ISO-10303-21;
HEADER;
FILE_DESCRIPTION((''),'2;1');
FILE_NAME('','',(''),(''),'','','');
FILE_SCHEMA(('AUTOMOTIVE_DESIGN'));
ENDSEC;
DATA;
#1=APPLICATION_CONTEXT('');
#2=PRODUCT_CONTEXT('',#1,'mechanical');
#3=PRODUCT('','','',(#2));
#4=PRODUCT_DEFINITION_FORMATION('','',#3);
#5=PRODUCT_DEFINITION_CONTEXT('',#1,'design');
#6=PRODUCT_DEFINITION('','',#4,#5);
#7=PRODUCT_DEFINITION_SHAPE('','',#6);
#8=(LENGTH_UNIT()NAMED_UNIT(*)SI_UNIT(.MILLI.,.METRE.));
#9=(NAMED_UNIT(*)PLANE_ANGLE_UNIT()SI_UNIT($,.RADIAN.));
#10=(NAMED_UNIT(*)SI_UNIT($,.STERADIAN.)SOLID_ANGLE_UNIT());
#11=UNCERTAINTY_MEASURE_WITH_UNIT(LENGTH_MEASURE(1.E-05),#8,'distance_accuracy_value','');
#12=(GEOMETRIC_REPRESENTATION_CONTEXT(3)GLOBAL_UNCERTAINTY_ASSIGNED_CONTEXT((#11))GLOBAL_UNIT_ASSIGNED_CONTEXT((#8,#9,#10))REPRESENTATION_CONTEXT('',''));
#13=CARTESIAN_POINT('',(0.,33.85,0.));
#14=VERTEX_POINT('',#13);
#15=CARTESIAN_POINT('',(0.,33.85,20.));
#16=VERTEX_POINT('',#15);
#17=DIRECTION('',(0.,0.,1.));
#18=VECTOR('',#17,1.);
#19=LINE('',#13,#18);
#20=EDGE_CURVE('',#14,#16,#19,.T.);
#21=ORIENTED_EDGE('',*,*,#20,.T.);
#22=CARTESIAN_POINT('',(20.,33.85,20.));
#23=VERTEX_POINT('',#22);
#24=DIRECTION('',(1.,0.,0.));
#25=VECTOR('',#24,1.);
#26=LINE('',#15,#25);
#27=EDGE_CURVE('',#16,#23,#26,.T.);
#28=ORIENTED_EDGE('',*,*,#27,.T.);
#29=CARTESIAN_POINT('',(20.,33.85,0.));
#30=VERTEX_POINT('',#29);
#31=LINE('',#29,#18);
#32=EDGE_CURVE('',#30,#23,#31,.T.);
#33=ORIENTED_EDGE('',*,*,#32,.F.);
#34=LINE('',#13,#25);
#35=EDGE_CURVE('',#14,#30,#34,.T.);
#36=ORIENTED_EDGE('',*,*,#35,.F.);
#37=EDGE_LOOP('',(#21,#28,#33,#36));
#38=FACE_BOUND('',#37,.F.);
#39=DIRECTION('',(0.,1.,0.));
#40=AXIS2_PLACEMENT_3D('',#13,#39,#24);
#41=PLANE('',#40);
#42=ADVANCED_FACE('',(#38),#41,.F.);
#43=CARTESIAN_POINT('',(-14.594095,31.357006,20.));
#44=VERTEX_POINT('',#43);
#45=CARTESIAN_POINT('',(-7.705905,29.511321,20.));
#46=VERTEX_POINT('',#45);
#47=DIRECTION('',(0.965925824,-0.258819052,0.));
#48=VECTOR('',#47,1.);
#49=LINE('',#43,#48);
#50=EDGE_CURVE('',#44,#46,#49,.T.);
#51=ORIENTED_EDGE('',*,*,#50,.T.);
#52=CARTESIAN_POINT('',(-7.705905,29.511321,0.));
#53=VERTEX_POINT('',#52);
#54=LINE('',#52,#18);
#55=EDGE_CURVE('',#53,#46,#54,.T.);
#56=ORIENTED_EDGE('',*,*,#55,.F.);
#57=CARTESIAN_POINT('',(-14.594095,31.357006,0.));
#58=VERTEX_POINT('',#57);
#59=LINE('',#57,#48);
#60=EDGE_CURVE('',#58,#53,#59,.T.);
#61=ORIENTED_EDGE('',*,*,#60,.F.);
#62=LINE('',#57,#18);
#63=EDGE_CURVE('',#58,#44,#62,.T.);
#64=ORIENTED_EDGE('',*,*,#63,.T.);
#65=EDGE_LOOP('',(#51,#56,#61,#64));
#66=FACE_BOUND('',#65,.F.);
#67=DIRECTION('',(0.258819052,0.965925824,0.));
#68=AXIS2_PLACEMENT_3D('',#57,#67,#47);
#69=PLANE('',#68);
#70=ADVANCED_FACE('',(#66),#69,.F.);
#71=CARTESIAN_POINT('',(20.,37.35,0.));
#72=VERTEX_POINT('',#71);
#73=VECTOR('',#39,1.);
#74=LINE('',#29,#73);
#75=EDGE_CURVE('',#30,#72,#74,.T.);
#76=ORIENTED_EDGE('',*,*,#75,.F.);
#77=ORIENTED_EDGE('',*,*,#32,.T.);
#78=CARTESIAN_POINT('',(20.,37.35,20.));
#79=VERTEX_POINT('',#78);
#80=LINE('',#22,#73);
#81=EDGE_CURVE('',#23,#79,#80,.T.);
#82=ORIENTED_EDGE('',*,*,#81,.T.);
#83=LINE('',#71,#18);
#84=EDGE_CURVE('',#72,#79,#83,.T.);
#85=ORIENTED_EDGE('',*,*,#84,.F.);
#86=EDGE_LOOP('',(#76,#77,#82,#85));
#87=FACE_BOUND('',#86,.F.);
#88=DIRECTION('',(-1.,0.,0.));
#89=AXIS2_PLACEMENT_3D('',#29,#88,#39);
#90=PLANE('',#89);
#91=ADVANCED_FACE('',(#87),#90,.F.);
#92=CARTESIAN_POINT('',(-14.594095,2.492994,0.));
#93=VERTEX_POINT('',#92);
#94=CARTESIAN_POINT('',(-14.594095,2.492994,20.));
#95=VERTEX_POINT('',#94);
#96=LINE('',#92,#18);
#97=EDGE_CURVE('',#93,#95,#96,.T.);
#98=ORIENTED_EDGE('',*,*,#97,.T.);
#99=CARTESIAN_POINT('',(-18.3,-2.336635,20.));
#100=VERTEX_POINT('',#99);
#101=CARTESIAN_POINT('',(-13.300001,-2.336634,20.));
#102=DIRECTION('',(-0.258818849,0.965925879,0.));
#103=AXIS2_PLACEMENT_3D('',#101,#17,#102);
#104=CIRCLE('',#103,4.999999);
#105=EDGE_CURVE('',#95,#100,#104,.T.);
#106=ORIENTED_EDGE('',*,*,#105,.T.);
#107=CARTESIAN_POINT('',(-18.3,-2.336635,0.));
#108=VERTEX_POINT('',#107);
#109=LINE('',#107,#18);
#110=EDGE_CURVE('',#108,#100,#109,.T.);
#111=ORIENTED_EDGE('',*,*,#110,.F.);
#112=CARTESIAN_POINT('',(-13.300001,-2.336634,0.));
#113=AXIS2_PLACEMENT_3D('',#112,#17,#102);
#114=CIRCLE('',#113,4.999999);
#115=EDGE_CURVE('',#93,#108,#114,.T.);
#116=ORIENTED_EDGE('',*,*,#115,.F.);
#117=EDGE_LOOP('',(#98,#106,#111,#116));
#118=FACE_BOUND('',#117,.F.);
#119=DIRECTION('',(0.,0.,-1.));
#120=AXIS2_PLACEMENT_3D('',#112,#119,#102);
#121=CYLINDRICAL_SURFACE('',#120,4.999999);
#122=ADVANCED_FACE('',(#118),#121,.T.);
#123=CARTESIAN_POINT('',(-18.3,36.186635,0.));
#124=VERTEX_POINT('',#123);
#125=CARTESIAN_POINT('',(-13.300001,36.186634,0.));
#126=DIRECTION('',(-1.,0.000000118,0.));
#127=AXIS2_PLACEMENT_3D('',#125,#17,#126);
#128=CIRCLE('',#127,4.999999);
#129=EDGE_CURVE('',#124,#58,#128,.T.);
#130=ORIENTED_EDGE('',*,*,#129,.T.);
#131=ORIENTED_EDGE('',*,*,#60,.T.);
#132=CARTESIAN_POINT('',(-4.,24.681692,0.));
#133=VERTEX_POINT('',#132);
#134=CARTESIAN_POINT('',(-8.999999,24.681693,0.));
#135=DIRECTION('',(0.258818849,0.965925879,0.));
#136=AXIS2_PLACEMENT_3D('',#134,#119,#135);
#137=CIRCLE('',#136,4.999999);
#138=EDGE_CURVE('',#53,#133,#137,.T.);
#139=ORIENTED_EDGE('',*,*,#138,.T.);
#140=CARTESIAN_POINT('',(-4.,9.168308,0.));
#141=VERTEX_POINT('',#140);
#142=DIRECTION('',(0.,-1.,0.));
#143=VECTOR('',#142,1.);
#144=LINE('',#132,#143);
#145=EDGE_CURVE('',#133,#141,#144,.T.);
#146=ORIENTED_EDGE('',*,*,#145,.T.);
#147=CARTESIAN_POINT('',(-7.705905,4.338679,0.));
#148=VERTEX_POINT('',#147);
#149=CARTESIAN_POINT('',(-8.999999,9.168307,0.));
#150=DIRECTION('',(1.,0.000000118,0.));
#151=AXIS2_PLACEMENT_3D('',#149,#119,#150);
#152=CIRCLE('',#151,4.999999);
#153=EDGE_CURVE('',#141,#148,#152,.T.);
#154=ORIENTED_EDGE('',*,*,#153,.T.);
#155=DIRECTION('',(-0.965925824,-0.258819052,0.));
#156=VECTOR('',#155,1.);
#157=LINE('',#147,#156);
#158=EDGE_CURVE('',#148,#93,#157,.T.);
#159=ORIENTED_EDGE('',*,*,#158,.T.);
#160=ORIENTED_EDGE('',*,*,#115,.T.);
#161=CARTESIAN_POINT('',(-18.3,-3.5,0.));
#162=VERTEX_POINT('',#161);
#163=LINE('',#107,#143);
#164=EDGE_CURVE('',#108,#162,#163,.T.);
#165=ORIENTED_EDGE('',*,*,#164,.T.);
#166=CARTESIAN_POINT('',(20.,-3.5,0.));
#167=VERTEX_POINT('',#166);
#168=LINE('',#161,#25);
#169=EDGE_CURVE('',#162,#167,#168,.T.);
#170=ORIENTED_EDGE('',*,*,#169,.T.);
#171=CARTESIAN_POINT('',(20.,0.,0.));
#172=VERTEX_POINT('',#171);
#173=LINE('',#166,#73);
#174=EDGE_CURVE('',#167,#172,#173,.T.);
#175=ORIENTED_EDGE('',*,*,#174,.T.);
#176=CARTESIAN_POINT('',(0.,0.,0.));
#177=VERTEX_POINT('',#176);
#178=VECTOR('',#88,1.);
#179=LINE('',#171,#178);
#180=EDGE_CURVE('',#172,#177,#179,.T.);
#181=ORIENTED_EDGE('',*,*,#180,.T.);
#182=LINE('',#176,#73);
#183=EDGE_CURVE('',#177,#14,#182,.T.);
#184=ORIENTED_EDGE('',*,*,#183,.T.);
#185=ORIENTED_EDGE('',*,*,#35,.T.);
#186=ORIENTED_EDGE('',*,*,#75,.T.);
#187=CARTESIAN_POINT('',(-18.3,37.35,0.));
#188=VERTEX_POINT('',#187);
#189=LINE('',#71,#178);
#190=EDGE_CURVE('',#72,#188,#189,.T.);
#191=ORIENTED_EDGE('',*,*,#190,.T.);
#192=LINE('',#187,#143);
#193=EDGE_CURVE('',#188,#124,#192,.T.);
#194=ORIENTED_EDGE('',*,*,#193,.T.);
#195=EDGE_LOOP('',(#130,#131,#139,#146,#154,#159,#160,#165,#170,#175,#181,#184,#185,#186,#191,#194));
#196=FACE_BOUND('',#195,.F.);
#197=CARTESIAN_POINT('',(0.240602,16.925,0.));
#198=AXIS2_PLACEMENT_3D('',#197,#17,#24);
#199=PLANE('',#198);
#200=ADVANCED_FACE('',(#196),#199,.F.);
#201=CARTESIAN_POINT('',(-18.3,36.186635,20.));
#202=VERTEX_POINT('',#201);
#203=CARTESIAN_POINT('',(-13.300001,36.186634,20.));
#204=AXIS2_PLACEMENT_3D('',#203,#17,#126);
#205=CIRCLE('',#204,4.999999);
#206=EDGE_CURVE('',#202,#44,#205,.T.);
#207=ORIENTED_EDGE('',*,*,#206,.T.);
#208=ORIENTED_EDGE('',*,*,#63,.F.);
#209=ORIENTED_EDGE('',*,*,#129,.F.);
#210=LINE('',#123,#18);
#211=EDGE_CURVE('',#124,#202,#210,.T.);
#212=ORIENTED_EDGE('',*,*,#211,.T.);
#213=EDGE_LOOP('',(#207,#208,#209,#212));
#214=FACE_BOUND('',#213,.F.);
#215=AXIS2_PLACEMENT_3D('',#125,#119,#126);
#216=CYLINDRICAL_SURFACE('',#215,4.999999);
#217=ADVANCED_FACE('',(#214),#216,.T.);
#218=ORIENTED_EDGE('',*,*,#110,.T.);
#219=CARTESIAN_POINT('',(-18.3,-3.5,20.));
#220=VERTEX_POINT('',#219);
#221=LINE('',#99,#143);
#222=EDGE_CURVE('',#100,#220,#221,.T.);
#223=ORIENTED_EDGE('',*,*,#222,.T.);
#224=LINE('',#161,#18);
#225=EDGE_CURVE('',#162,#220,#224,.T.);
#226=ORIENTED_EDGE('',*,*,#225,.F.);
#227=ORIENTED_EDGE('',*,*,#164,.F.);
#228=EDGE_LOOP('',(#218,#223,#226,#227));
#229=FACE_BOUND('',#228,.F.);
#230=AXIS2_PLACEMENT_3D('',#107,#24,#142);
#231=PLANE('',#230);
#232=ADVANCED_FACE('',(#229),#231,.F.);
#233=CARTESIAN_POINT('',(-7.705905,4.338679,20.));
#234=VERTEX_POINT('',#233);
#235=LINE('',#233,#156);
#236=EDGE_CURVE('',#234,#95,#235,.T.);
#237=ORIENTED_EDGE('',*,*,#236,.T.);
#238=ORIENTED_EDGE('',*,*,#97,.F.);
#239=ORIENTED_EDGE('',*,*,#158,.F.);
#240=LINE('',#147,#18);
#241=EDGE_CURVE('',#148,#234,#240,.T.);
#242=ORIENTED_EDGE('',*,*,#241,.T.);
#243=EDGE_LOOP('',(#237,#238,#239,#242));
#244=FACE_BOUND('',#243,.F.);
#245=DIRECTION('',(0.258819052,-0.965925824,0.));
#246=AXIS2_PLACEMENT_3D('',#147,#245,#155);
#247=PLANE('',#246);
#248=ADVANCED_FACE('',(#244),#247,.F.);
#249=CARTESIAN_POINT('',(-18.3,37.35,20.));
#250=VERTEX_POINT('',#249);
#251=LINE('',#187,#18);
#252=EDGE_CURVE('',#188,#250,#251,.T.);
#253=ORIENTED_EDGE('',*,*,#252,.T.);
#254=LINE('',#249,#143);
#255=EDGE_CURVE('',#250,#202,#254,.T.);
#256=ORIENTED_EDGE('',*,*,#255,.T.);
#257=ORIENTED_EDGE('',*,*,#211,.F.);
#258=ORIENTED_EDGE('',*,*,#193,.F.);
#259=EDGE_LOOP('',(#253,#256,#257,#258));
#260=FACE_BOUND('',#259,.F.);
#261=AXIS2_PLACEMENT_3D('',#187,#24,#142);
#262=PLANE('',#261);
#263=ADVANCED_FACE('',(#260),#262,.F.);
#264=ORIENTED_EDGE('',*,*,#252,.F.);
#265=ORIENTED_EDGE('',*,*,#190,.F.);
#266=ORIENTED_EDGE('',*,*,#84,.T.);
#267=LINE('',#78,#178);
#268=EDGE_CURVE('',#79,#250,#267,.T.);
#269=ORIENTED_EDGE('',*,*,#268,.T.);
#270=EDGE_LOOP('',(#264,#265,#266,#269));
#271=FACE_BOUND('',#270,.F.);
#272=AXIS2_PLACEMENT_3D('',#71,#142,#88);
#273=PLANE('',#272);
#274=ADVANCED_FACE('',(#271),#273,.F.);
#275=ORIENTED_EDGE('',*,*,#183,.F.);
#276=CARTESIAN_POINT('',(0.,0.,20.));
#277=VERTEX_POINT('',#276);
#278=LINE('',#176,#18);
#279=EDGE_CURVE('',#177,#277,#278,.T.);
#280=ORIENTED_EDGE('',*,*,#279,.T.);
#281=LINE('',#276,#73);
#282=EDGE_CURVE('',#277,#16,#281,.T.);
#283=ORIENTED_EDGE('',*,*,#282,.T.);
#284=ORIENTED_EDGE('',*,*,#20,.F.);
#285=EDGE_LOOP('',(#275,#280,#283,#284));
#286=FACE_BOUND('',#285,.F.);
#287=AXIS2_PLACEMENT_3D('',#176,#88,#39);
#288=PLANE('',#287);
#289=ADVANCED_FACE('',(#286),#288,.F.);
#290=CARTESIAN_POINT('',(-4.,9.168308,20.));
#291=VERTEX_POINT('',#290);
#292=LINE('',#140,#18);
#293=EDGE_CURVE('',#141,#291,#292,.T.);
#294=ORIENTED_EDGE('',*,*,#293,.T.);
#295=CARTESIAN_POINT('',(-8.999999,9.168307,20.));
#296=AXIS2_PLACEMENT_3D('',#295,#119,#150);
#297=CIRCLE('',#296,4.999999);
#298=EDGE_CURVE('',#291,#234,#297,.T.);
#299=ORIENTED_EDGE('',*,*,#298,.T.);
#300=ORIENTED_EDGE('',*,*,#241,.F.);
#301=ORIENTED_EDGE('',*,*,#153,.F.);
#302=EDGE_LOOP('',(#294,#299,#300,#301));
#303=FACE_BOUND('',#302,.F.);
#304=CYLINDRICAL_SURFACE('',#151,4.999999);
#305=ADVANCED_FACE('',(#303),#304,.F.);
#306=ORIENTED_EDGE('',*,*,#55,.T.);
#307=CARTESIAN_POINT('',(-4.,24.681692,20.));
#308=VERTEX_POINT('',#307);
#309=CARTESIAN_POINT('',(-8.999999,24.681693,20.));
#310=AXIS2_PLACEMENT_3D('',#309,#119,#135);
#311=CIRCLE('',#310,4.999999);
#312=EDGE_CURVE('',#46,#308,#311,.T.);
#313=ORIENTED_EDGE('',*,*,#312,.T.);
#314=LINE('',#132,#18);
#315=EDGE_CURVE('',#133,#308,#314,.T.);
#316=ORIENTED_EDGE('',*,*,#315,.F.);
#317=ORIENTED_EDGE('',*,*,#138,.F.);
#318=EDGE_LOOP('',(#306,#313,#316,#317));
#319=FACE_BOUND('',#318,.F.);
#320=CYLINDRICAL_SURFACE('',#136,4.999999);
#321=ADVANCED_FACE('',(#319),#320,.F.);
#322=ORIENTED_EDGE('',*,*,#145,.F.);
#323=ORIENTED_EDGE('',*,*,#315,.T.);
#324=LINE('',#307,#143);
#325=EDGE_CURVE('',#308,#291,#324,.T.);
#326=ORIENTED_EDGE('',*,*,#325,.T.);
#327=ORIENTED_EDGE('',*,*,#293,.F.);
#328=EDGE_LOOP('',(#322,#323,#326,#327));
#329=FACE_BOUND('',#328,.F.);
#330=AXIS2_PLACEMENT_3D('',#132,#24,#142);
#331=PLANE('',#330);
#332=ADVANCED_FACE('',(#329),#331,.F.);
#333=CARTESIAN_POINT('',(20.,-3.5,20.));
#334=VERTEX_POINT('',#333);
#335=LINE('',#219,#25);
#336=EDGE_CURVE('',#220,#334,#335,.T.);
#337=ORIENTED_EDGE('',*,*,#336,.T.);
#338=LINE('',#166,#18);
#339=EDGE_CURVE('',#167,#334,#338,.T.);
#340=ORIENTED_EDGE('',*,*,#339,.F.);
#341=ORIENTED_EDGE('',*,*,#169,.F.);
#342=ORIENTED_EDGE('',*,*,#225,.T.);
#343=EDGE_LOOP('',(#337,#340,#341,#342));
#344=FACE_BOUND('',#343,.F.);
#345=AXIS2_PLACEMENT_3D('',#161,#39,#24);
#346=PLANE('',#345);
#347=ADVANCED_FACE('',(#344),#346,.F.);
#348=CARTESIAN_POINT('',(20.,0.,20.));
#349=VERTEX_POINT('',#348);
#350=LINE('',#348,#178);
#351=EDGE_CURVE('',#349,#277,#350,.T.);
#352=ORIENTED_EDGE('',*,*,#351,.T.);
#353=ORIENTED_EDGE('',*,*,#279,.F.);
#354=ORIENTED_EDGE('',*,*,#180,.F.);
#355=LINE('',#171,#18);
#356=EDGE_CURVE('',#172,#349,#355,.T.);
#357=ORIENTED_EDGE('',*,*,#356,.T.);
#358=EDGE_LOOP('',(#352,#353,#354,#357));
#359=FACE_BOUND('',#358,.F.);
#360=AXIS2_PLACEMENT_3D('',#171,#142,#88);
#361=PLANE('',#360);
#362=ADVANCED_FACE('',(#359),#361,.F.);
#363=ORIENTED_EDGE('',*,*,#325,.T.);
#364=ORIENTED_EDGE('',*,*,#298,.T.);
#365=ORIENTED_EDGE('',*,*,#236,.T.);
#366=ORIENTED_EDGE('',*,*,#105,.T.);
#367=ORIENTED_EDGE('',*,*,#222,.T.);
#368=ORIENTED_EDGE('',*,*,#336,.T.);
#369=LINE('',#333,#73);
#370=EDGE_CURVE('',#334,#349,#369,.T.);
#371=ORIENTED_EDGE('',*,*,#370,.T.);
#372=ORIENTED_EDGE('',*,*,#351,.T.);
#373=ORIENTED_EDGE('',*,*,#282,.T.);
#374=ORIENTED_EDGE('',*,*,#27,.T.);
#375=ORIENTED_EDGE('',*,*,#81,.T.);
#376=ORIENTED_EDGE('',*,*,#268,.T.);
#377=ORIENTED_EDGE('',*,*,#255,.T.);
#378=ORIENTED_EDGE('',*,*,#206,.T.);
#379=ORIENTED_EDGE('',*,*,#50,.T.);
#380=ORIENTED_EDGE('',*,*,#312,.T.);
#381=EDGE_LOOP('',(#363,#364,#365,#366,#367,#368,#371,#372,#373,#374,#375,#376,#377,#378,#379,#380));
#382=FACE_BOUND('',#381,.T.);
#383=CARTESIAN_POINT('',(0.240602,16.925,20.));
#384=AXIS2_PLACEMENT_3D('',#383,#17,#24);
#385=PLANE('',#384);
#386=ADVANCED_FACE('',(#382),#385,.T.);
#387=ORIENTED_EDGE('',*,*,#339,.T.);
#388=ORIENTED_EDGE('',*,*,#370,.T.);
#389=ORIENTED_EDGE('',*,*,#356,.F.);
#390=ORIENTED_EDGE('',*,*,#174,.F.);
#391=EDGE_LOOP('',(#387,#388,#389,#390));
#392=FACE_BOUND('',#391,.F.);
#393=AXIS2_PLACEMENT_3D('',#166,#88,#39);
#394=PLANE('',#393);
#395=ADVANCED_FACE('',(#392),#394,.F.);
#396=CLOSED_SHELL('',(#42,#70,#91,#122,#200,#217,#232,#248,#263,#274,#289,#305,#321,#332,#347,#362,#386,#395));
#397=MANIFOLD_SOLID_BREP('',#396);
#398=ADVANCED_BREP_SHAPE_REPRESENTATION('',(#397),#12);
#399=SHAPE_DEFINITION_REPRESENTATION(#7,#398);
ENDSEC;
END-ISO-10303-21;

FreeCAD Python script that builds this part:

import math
import FreeCAD as App
import Part
import Sketcher

V = App.Vector
Q = App.Units.Quantity

doc = App.newDocument("Part")
params = doc.addObject("Spreadsheet::Sheet", "Params")
for row, (alias, value) in enumerate([
    ("sketch1_radius", "4.999999 mm"),
    ("sketch1_width", "20 mm"),
    ("sketch1_width2", "38.3 mm"),
    ("sketch1_height", "3.5 mm"),
    ("sketch1_height2", "33.85 mm"),
    ("pad1_length", "20 mm"),
], start=1):
    params.set(f"A{row}", alias)
    params.set(f"B{row}", "=" + value)
    params.setAlias(f"B{row}", alias)

body = doc.addObject("PartDesign::Body", "Body")

sketch1 = body.newObject("Sketcher::SketchObject", "Sketch")
sketch1.AttachmentSupport = (doc.getObject("XY_Plane"), [""])
sketch1.MapMode = "FlatFace"
sketch1.addGeometry(Part.LineSegment(V(20, -3.5, 0), V(20, 0, 0)), False)
sketch1.addGeometry(Part.LineSegment(V(20, 0, 0), V(0, 0, 0)), False)
sketch1.addGeometry(Part.LineSegment(V(0, 0, 0), V(0, 33.9, 0)), False)
sketch1.addGeometry(Part.LineSegment(V(0, 33.9, 0), V(20, 33.9, 0)), False)
sketch1.addGeometry(Part.LineSegment(V(20, 33.9, 0), V(20, 37.4, 0)), False)
sketch1.addGeometry(Part.LineSegment(V(20, 37.4, 0), V(-18.3, 37.4, 0)), False)
sketch1.addGeometry(Part.LineSegment(V(-18.3, 37.4, 0), V(-18.3, 36.2, 0)), False)
sketch1.addGeometry(Part.ArcOfCircle(Part.Circle(V(-13.3, 36.2, 0), V(0, 0, 1), 5), math.radians(180), math.radians(255)), False)
sketch1.addGeometry(Part.LineSegment(V(-14.6, 31.4, 0), V(-7.7, 29.5, 0)), False)
sketch1.addGeometry(Part.ArcOfCircle(Part.Circle(V(-9, 24.7, 0), V(0, 0, 1), 5), math.radians(0), math.radians(75)), False)
sketch1.addGeometry(Part.LineSegment(V(-4, 24.7, 0), V(-4, 9.2, 0)), False)
sketch1.addGeometry(Part.ArcOfCircle(Part.Circle(V(-9, 9.2, 0), V(0, 0, 1), 5), math.radians(-75), math.radians(0)), False)
sketch1.addGeometry(Part.LineSegment(V(-7.7, 4.3, 0), V(-14.6, 2.5, 0)), False)
sketch1.addGeometry(Part.ArcOfCircle(Part.Circle(V(-13.3, -2.3, 0), V(0, 0, 1), 5), math.radians(105), math.radians(180)), False)
sketch1.addGeometry(Part.LineSegment(V(-18.3, -2.3, 0), V(-18.3, -3.5, 0)), False)
sketch1.addGeometry(Part.LineSegment(V(-18.3, -3.5, 0), V(20, -3.5, 0)), False)
sketch1.addConstraint(Sketcher.Constraint("Coincident", 0, 2, 1, 1))
sketch1.addConstraint(Sketcher.Constraint("Coincident", 1, 2, 2, 1))
sketch1.addConstraint(Sketcher.Constraint("Coincident", 2, 2, 3, 1))
sketch1.addConstraint(Sketcher.Constraint("Coincident", 3, 2, 4, 1))
sketch1.addConstraint(Sketcher.Constraint("Coincident", 4, 2, 5, 1))
sketch1.addConstraint(Sketcher.Constraint("Coincident", 5, 2, 6, 1))
sketch1.addConstraint(Sketcher.Constraint("Tangent", 6, 2, 7, 1))
sketch1.addConstraint(Sketcher.Constraint("Tangent", 7, 2, 8, 1))
sketch1.addConstraint(Sketcher.Constraint("Tangent", 8, 2, 9, 2))
sketch1.addConstraint(Sketcher.Constraint("Tangent", 9, 1, 10, 1))
sketch1.addConstraint(Sketcher.Constraint("Tangent", 10, 2, 11, 2))
sketch1.addConstraint(Sketcher.Constraint("Tangent", 11, 1, 12, 1))
sketch1.addConstraint(Sketcher.Constraint("Tangent", 12, 2, 13, 1))
sketch1.addConstraint(Sketcher.Constraint("Tangent", 13, 2, 14, 1))
sketch1.addConstraint(Sketcher.Constraint("Coincident", 14, 2, 15, 1))
sketch1.addConstraint(Sketcher.Constraint("Coincident", 15, 2, 0, 1))
sketch1.addConstraint(Sketcher.Constraint("Vertical", 0))
sketch1.addConstraint(Sketcher.Constraint("Horizontal", 1))
sketch1.addConstraint(Sketcher.Constraint("Vertical", 2))
sketch1.addConstraint(Sketcher.Constraint("Horizontal", 3))
sketch1.addConstraint(Sketcher.Constraint("Vertical", 4))
sketch1.addConstraint(Sketcher.Constraint("Horizontal", 5))
sketch1.addConstraint(Sketcher.Constraint("Vertical", 6))
sketch1.addConstraint(Sketcher.Constraint("Vertical", 10))
sketch1.addConstraint(Sketcher.Constraint("Vertical", 14))
sketch1.addConstraint(Sketcher.Constraint("Horizontal", 15))
sketch1.addConstraint(Sketcher.Constraint("Coincident", 1, 2, -1, 1))
sketch1.addConstraint(Sketcher.Constraint("Equal", 7, 9))
sketch1.addConstraint(Sketcher.Constraint("Equal", 9, 11))
sketch1.addConstraint(Sketcher.Constraint("Equal", 11, 13))
sketch1.addConstraint(Sketcher.Constraint("Vertical", 7, 3, 13, 3))
sketch1.addConstraint(Sketcher.Constraint("Vertical", 0, 2, 3, 2))
sketch1.addConstraint(Sketcher.Constraint("Vertical", 8, 2, 11, 1))
sketch1.addConstraint(Sketcher.Constraint("Equal", 0, 4))
sketch1.addConstraint(Sketcher.Constraint("Equal", 6, 14))
sketch1.addConstraint(Sketcher.Constraint("Radius", 7, 4.999999))
sketch1.addConstraint(Sketcher.Constraint("DistanceX", 1, 2, 1, 1, 20.0))
sketch1.addConstraint(Sketcher.Constraint("Angle", 8, Q("-15 deg")))
sketch1.addConstraint(Sketcher.Constraint("DistanceX", 5, 2, 5, 1, 38.3))
sketch1.addConstraint(Sketcher.Constraint("DistanceY", 0, 1, 0, 2, 3.5))
sketch1.addConstraint(Sketcher.Constraint("DistanceX", 9, 3, -1, 1, 8.999999))
sketch1.addConstraint(Sketcher.Constraint("DistanceY", 2, 1, 2, 2, 33.85))
sketch1.addConstraint(Sketcher.Constraint("DistanceY", 6, 2, 6, 1, 1.163365))
sketch1.setExpression("Constraints[35]", "Params.sketch1_radius")
sketch1.setExpression("Constraints[36]", "Params.sketch1_width")
sketch1.setExpression("Constraints[38]", "Params.sketch1_width2")
sketch1.setExpression("Constraints[39]", "Params.sketch1_height")
sketch1.setExpression("Constraints[41]", "Params.sketch1_height2")
pad1 = body.newObject("PartDesign::Pad", "Pad")
pad1.Profile = sketch1
pad1.setExpression("Length", "Params.pad1_length")

doc.recompute()
